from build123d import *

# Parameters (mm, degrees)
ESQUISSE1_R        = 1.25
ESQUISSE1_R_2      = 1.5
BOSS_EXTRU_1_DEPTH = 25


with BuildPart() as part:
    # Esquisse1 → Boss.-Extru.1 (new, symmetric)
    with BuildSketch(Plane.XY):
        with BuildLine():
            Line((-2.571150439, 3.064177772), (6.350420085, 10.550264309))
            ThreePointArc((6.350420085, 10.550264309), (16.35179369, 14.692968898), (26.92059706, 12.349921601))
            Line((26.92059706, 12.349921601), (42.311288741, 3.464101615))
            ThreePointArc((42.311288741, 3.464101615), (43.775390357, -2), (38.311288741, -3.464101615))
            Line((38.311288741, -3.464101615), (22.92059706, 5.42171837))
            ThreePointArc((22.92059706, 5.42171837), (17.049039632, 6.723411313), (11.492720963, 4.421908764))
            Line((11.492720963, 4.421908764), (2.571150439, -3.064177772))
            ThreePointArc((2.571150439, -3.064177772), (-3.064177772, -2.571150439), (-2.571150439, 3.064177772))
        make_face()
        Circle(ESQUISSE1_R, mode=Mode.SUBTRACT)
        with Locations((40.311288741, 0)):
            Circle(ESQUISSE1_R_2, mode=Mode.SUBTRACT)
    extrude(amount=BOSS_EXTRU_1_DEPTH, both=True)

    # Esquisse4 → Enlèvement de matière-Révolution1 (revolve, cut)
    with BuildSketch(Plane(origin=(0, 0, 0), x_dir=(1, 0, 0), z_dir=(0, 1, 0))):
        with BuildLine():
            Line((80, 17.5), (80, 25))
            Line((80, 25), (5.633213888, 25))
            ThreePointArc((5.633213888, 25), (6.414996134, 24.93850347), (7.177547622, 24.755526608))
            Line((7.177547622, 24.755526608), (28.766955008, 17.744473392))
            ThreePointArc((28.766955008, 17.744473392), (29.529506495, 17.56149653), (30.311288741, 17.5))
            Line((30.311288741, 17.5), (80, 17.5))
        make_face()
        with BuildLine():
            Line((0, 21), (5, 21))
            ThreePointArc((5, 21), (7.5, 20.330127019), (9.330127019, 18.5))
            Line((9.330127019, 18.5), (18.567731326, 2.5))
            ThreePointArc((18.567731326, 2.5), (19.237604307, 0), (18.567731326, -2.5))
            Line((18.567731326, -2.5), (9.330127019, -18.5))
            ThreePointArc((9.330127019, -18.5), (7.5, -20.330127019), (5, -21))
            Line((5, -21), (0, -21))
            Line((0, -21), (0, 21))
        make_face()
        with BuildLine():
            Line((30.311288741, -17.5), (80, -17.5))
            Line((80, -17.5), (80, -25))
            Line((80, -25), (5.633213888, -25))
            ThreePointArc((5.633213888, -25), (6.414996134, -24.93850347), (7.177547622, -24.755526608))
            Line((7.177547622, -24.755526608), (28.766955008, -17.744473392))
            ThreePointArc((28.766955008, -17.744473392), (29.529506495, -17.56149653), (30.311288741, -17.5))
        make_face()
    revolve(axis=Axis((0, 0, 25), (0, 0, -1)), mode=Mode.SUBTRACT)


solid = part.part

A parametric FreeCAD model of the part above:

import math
import FreeCAD as App
import Part
import Sketcher

V = App.Vector
Q = App.Units.Quantity

doc = App.newDocument("Part")
body = doc.addObject("PartDesign::Body", "Body")

# Sketch on XY plane
sketch1 = body.newObject("Sketcher::SketchObject", "Sketch")
sketch1.AttachmentSupport = (doc.getObject("XY_Plane"), [""])
sketch1.MapMode = "FlatFace"
sketch1.addGeometry([
    Part.LineSegment(V(6.4, 10.6, 0), V(-2.6, 3.1, 0)),  # 0
    Part.ArcOfCircle(Part.Circle(V(0, 0, 0), V(0, 0, 1), 4), math.radians(130), math.radians(310)),  # 1
    Part.LineSegment(V(2.6, -3.1, 0), V(11.5, 4.4, 0)),  # 2
    Part.ArcOfCircle(Part.Circle(V(17.9, -3.2, 0), V(0, 0, 1), 10), math.radians(60), math.radians(130)),  # 3
    Part.LineSegment(V(22.9, 5.4, 0), V(38.3, -3.5, 0)),  # 4
    Part.ArcOfCircle(Part.Circle(V(40.3, 0, 0), V(0, 0, 1), 4), math.radians(-120), math.radians(60)),  # 5
    Part.LineSegment(V(42.3, 3.5, 0), V(26.9, 12.3, 0)),  # 6
    Part.ArcOfCircle(Part.Circle(V(17.9, -3.2, 0), V(0, 0, 1), 18), math.radians(60), math.radians(130)),  # 7
    Part.Circle(V(40.3, 0, 0), V(0, 0, 1), 1.5),  # 8
    Part.Circle(V(0, 0, 0), V(0, 0, 1), 1.2),  # 9
], False)
sketch1.addConstraint([
    Sketcher.Constraint("Tangent", 0, 2, 1, 1),
    Sketcher.Constraint("Tangent", 1, 2, 2, 1),
    Sketcher.Constraint("Tangent", 2, 2, 3, 2),
    Sketcher.Constraint("Tangent", 3, 1, 4, 1),
    Sketcher.Constraint("Tangent", 4, 2, 5, 1),
    Sketcher.Constraint("Tangent", 5, 2, 6, 1),
    Sketcher.Constraint("Tangent", 6, 2, 7, 1),
    Sketcher.Constraint("Tangent", 7, 2, 0, 1),
    Sketcher.Constraint("Coincident", 1, 3, -1, 1),
    Sketcher.Constraint("Coincident", 9, 3, -1, 1),
    Sketcher.Constraint("Coincident", 7, 3, 3, 3),
    Sketcher.Constraint("Coincident", 8, 3, 5, 3),
    Sketcher.Constraint("Equal", 1, 5),
    Sketcher.Constraint("PointOnObject", 5, 3, -1),
    Sketcher.Constraint("Parallel", 0, 2),
    Sketcher.Constraint("Diameter", 8, Q("3 mm")),
    Sketcher.Constraint("Radius", 1, Q("4 mm")),
    Sketcher.Constraint("Radius", 3, Q("10 mm")),
    Sketcher.Constraint("Diameter", 9, Q("2.5 mm")),
    Sketcher.Constraint("Angle", 0, Q("-140 deg")),
    Sketcher.Constraint("Angle", 4, Q("-30 deg")),
    Sketcher.Constraint("Distance", 4, Q("17.77164 mm")),
])
pad1 = body.newObject("PartDesign::Pad", "Pad")
pad1.Profile = sketch1
pad1.Length = 50
pad1.Midplane = True

# Sketch on XZ plane
sketch2 = body.newObject("Sketcher::SketchObject", "Sketch001")
sketch2.AttachmentSupport = (doc.getObject("XZ_Plane"), [""])
sketch2.MapMode = "FlatFace"
sketch2.addGeometry([
    Part.LineSegment(V(80, -17.5, 0), V(80, -25, 0)),  # 0
    Part.LineSegment(V(80, -25, 0), V(5.6, -25, 0)),  # 1
    Part.ArcOfCircle(Part.Circle(V(5.6, -20, 0), V(0, 0, 1), 5), math.radians(-90), math.radians(-72.01)),  # 2
    Part.LineSegment(V(7.2, -24.8, 0), V(28.8, -17.7, 0)),  # 3
    Part.ArcOfCircle(Part.Circle(V(30.3, -22.5, 0), V(0, 0, 1), 5), math.radians(90), math.radians(107.99)),  # 4
    Part.LineSegment(V(30.3, -17.5, 0), V(80, -17.5, 0)),  # 5
    Part.LineSegment(V(5, -21, 0), V(0, -21, 0)),  # 6
    Part.LineSegment(V(0, -21, 0), V(0, 21, 0)),  # 7
    Part.LineSegment(V(0, 21, 0), V(5, 21, 0)),  # 8
    Part.ArcOfCircle(Part.Circle(V(5, 16, 0), V(0, 0, 1), 5), math.radians(30), math.radians(90)),  # 9
    Part.LineSegment(V(9.3, 18.5, 0), V(18.6, 2.5, 0)),  # 10
    Part.ArcOfCircle(Part.Circle(V(14.2, 0, 0), V(0, 0, 1), 5), math.radians(-30), math.radians(30)),  # 11
    Part.LineSegment(V(18.6, -2.5, 0), V(9.3, -18.5, 0)),  # 12
    Part.ArcOfCircle(Part.Circle(V(5, -16, 0), V(0, 0, 1), 5), math.radians(-90), math.radians(-30)),  # 13
    Part.LineSegment(V(80, 17.5, 0), V(30.3, 17.5, 0)),  # 14
    Part.ArcOfCircle(Part.Circle(V(30.3, 22.5, 0), V(0, 0, 1), 5), math.radians(-107.99), math.radians(-90)),  # 15
    Part.LineSegment(V(28.8, 17.7, 0), V(7.2, 24.8, 0)),  # 16
    Part.ArcOfCircle(Part.Circle(V(5.6, 20, 0), V(0, 0, 1), 5), math.radians(72.01), math.radians(90)),  # 17
    Part.LineSegment(V(5.6, 25, 0), V(80, 25, 0)),  # 18
    Part.LineSegment(V(80, 25, 0), V(80, 17.5, 0)),  # 19
], False)
sketch2.addConstraint([
    Sketcher.Constraint("Coincident", 0, 2, 1, 1),
    Sketcher.Constraint("Tangent", 1, 2, 2, 1),
    Sketcher.Constraint("Tangent", 2, 2, 3, 1),
    Sketcher.Constraint("Tangent", 3, 2, 4, 2),
    Sketcher.Constraint("Tangent", 4, 1, 5, 1),
    Sketcher.Constraint("Coincident", 5, 2, 0, 1),
    Sketcher.Constraint("Coincident", 6, 2, 7, 1),
    Sketcher.Constraint("Coincident", 7, 2, 8, 1),
    Sketcher.Constraint("Tangent", 8, 2, 9, 2),
    Sketcher.Constraint("Tangent", 9, 1, 10, 1),
    Sketcher.Constraint("Tangent", 10, 2, 11, 2),
    Sketcher.Constraint("Tangent", 11, 1, 12, 1),
    Sketcher.Constraint("Tangent", 12, 2, 13, 2),
    Sketcher.Constraint("Tangent", 13, 1, 6, 1),
    Sketcher.Constraint("Tangent", 14, 2, 15, 2),
    Sketcher.Constraint("Tangent", 15, 1, 16, 1),
    Sketcher.Constraint("Tangent", 16, 2, 17, 1),
    Sketcher.Constraint("Tangent", 17, 2, 18, 1),
    Sketcher.Constraint("Coincident", 18, 2, 19, 1),
    Sketcher.Constraint("Coincident", 19, 2, 14, 1),
    Sketcher.Constraint("Vertical", 0),
    Sketcher.Constraint("Horizontal", 1),
    Sketcher.Constraint("Horizontal", 5),
    Sketcher.Constraint("Horizontal", 6),
    Sketcher.Constraint("Vertical", 7),
    Sketcher.Constraint("Horizontal", 8),
    Sketcher.Constraint("Horizontal", 14),
    Sketcher.Constraint("Horizontal", 18),
    Sketcher.Constraint("Vertical", 19),
    Sketcher.Constraint("Equal", 2, 4),
    Sketcher.Constraint("Equal", 4, 9),
    Sketcher.Constraint("Equal", 9, 11),
    Sketcher.Constraint("Equal", 11, 13),
    Sketcher.Constraint("Equal", 13, 15),
    Sketcher.Constraint("Equal", 15, 17),
    Sketcher.Constraint("Symmetric", 6, 2, 7, 2, -1, 1),
    Sketcher.Constraint("Symmetric", 4, 3, 15, 3, -1),
    Sketcher.Constraint("Symmetric", 2, 3, 17, 3, -1),
    Sketcher.Constraint("Symmetric", 10, 2, 11, 1, -1),
    Sketcher.Constraint("Vertical", 5, 2, 18, 2),
    Sketcher.Constraint("Radius", 2, Q("5 mm")),
    Sketcher.Constraint("DistanceX", 6, 2, 6, 1, Q("5 mm")),
    Sketcher.Constraint("DistanceY", 7, 1, 7, 2, Q("42 mm")),
    Sketcher.Constraint("Angle", 10, Q("-60 deg")),
    Sketcher.Constraint("DistanceY", 0, 2, 0, 1, Q("7.5 mm")),
    Sketcher.Constraint("DistanceY", 2, 3, -1, 1, Q("20 mm")),
    Sketcher.Constraint("DistanceX", -1, 1, 0, 2, Q("80 mm")),
    Sketcher.Constraint("DistanceX", 5, 1, 5, 2, Q("49.688711 mm")),
    Sketcher.Constraint("Distance", 3, Q("22.699281 mm")),
])
groove = body.newObject("PartDesign::Groove", "Groove")
groove.Profile = sketch2
groove.ReferenceAxis = (sketch2, ["V_Axis"])
groove.Angle = 360

doc.recompute()
